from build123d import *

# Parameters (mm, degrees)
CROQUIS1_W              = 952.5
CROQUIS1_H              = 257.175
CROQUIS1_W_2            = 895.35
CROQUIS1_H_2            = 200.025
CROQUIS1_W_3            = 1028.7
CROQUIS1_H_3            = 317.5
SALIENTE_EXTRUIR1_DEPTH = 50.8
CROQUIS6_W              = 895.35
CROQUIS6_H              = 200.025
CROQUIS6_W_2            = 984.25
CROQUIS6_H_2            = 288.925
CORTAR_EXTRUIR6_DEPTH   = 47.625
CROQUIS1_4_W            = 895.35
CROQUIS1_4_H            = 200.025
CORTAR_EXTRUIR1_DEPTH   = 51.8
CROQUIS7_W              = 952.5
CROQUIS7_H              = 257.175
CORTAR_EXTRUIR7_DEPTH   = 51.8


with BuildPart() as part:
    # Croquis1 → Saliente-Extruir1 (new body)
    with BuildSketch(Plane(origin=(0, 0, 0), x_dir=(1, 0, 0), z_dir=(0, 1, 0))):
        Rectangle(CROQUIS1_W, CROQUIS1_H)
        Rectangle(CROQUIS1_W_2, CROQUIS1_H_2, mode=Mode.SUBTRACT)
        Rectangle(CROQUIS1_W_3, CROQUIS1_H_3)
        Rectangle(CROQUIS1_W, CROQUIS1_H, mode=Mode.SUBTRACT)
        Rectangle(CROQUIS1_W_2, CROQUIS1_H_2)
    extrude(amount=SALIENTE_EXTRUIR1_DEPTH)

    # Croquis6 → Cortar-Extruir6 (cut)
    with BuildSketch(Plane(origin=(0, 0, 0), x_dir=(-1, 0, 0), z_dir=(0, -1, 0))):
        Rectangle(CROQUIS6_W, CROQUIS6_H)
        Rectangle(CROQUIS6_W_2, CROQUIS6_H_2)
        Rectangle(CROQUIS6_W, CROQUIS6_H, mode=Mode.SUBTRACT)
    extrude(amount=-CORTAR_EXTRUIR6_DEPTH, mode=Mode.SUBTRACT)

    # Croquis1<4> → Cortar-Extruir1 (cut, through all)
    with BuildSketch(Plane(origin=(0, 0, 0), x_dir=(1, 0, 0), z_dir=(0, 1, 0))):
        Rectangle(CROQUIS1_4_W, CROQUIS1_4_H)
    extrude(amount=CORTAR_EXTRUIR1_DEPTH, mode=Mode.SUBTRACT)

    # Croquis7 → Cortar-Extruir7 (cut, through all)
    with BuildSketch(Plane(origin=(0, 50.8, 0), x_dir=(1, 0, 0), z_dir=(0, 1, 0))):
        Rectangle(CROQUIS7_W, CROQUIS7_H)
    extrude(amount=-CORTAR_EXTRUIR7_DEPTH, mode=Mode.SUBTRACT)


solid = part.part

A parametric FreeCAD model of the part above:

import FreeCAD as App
import Part
import Sketcher
from FreeCAD import Vector
Q = App.Units.Quantity


def add_polygon(sketch, points):
    """Adds a closed chain of lines whose ends are joined by coincident constraints."""
    first, n = sketch.GeometryCount, len(points)
    for a, b in zip(points, points[1:] + points[:1]):
        sketch.addGeometry(Part.LineSegment(App.Vector(*a, 0), App.Vector(*b, 0)), False)
    for i in range(n):
        sketch.addConstraint(Sketcher.Constraint("Coincident", first + i, 2, first + (i + 1) % n, 1))

doc = App.newDocument("Part")
body = doc.addObject("PartDesign::Body", "Body")
body.AllowCompound = True

# Sketch on XZ plane
sketch1 = body.newObject("Sketcher::SketchObject", "Sketch")
sketch1.AttachmentSupport = (doc.getObject("XZ_Plane"), [""])
sketch1.MapMode = "FlatFace"
add_polygon(sketch1, [(-514, -159), (-514, 159), (514, 159), (514, -159)])  # lines 0-3
add_polygon(sketch1, [(476, 129), (-476, 129), (-476, -129), (476, -129)])  # lines 4-7
add_polygon(sketch1, [(-448, -100), (-448, 100), (448, 100), (448, -100)])  # lines 8-11
sketch1.addConstraint([
    Sketcher.Constraint("Vertical", 0),
    Sketcher.Constraint("Horizontal", 1),
    Sketcher.Constraint("Vertical", 2),
    Sketcher.Constraint("Horizontal", 3),
    Sketcher.Constraint("Horizontal", 4),
    Sketcher.Constraint("Vertical", 5),
    Sketcher.Constraint("Horizontal", 6),
    Sketcher.Constraint("Vertical", 7),
    Sketcher.Constraint("Vertical", 8),
    Sketcher.Constraint("Horizontal", 9),
    Sketcher.Constraint("Vertical", 10),
    Sketcher.Constraint("Horizontal", 11),
    Sketcher.Constraint("Symmetric", 0, 2, 2, 2, -1, 1),
    Sketcher.Constraint("Symmetric", 4, 2, 6, 2, -1, 1),
    Sketcher.Constraint("Symmetric", 8, 2, 10, 2, -1, 1),
    Sketcher.Constraint("DistanceX", 1, 1, 1, 2, Q("40.5 in")),
    Sketcher.Constraint("DistanceX", 4, 2, 4, 1, Q("37.5 in")),
    Sketcher.Constraint("DistanceY", 0, 1, 0, 2, Q("12.5 in")),
    Sketcher.Constraint("DistanceY", 5, 2, 8, 2, Q("9 in")),
    Sketcher.Constraint("DistanceX", 9, 1, 9, 2, Q("35.25 in")),
    Sketcher.Constraint("DistanceY", 5, 2, 5, 1, Q("10.125 in")),
])
pad1 = body.newObject("PartDesign::Pad", "Pad")
pad1.Profile = sketch1
pad1.Length = Q("2 in")
pad1.Reversed = True

# Sketch on XZ plane
sketch2 = body.newObject("Sketcher::SketchObject", "Sketch001")
sketch2.AttachmentSupport = (doc.getObject("XZ_Plane"), [""])
sketch2.MapMode = "FlatFace"
add_polygon(sketch2, [(492, -144), (492, 144), (-492, 144), (-492, -144)])  # lines 0-3
add_polygon(sketch2, [(-448, 100), (448, 100), (448, -100), (-448, -100)])  # lines 4-7
sketch2.addConstraint([
    Sketcher.Constraint("Vertical", 0),
    Sketcher.Constraint("Horizontal", 1),
    Sketcher.Constraint("Vertical", 2),
    Sketcher.Constraint("Horizontal", 3),
    Sketcher.Constraint("Horizontal", 4),
    Sketcher.Constraint("Vertical", 5),
    Sketcher.Constraint("Horizontal", 6),
    Sketcher.Constraint("Vertical", 7),
    Sketcher.Constraint("Symmetric", 0, 2, 2, 2, -1, 1),
    Sketcher.Constraint("Symmetric", 4, 2, 6, 2, -1, 1),
    Sketcher.Constraint("DistanceX", 1, 2, 4, 2, Q("37 in")),
    Sketcher.Constraint("DistanceX", 1, 2, 1, 1, Q("38.75 in")),
    Sketcher.Constraint("DistanceY", 0, 1, 0, 2, Q("11.375 in")),
    Sketcher.Constraint("DistanceY", 5, 2, 5, 1, Q("7.875 in")),
])
pocket1 = body.newObject("PartDesign::Pocket", "Pocket")
pocket1.Profile = sketch2
pocket1.Length = Q("1.875 in")

# Sketch on XZ plane
sketch3 = body.newObject("Sketcher::SketchObject", "Sketch002")
sketch3.AttachmentSupport = (doc.getObject("XZ_Plane"), [""])
sketch3.MapMode = "FlatFace"
add_polygon(sketch3, [(-448, -100), (-448, 100), (448, 100), (448, -100)])  # lines 0-3
sketch3.addConstraint([
    Sketcher.Constraint("Vertical", 0),
    Sketcher.Constraint("Horizontal", 1),
    Sketcher.Constraint("Vertical", 2),
    Sketcher.Constraint("Horizontal", 3),
    Sketcher.Constraint("Symmetric", 0, 2, 2, 2, -1, 1),
    Sketcher.Constraint("DistanceX", 1, 1, 1, 2, Q("35.25 in")),
    Sketcher.Constraint("DistanceY", 0, 1, 0, 2, Q("7.875 in")),
])
pocket2 = body.newObject("PartDesign::Pocket", "Pocket001")
pocket2.Profile = sketch3
pocket2.Type = "ThroughAll"

# Sketch on XZ plane
sketch4 = body.newObject("Sketcher::SketchObject", "Sketch003")
sketch4.AttachmentSupport = (doc.getObject("XZ_Plane"), [""])
sketch4.MapMode = "FlatFace"
sketch4.AttachmentOffset = App.Placement(Vector(0, 0, -2 * 25.4), App.Rotation())
add_polygon(sketch4, [(-476, -129), (-476, 129), (476, 129), (476, -129)])  # lines 0-3
sketch4.addConstraint([
    Sketcher.Constraint("Vertical", 0),
    Sketcher.Constraint("Horizontal", 1),
    Sketcher.Constraint("Vertical", 2),
    Sketcher.Constraint("Horizontal", 3),
    Sketcher.Constraint("Symmetric", 0, 2, 2, 2, -1, 1),
    Sketcher.Constraint("DistanceX", 1, 1, 1, 2, Q("37.5 in")),
    Sketcher.Constraint("DistanceY", 0, 1, 0, 2, Q("10.125 in")),
])
pocket3 = body.newObject("PartDesign::Pocket", "Pocket002")
pocket3.Profile = sketch4
pocket3.Type = "ThroughAll"
pocket3.Reversed = True

doc.recompute()
